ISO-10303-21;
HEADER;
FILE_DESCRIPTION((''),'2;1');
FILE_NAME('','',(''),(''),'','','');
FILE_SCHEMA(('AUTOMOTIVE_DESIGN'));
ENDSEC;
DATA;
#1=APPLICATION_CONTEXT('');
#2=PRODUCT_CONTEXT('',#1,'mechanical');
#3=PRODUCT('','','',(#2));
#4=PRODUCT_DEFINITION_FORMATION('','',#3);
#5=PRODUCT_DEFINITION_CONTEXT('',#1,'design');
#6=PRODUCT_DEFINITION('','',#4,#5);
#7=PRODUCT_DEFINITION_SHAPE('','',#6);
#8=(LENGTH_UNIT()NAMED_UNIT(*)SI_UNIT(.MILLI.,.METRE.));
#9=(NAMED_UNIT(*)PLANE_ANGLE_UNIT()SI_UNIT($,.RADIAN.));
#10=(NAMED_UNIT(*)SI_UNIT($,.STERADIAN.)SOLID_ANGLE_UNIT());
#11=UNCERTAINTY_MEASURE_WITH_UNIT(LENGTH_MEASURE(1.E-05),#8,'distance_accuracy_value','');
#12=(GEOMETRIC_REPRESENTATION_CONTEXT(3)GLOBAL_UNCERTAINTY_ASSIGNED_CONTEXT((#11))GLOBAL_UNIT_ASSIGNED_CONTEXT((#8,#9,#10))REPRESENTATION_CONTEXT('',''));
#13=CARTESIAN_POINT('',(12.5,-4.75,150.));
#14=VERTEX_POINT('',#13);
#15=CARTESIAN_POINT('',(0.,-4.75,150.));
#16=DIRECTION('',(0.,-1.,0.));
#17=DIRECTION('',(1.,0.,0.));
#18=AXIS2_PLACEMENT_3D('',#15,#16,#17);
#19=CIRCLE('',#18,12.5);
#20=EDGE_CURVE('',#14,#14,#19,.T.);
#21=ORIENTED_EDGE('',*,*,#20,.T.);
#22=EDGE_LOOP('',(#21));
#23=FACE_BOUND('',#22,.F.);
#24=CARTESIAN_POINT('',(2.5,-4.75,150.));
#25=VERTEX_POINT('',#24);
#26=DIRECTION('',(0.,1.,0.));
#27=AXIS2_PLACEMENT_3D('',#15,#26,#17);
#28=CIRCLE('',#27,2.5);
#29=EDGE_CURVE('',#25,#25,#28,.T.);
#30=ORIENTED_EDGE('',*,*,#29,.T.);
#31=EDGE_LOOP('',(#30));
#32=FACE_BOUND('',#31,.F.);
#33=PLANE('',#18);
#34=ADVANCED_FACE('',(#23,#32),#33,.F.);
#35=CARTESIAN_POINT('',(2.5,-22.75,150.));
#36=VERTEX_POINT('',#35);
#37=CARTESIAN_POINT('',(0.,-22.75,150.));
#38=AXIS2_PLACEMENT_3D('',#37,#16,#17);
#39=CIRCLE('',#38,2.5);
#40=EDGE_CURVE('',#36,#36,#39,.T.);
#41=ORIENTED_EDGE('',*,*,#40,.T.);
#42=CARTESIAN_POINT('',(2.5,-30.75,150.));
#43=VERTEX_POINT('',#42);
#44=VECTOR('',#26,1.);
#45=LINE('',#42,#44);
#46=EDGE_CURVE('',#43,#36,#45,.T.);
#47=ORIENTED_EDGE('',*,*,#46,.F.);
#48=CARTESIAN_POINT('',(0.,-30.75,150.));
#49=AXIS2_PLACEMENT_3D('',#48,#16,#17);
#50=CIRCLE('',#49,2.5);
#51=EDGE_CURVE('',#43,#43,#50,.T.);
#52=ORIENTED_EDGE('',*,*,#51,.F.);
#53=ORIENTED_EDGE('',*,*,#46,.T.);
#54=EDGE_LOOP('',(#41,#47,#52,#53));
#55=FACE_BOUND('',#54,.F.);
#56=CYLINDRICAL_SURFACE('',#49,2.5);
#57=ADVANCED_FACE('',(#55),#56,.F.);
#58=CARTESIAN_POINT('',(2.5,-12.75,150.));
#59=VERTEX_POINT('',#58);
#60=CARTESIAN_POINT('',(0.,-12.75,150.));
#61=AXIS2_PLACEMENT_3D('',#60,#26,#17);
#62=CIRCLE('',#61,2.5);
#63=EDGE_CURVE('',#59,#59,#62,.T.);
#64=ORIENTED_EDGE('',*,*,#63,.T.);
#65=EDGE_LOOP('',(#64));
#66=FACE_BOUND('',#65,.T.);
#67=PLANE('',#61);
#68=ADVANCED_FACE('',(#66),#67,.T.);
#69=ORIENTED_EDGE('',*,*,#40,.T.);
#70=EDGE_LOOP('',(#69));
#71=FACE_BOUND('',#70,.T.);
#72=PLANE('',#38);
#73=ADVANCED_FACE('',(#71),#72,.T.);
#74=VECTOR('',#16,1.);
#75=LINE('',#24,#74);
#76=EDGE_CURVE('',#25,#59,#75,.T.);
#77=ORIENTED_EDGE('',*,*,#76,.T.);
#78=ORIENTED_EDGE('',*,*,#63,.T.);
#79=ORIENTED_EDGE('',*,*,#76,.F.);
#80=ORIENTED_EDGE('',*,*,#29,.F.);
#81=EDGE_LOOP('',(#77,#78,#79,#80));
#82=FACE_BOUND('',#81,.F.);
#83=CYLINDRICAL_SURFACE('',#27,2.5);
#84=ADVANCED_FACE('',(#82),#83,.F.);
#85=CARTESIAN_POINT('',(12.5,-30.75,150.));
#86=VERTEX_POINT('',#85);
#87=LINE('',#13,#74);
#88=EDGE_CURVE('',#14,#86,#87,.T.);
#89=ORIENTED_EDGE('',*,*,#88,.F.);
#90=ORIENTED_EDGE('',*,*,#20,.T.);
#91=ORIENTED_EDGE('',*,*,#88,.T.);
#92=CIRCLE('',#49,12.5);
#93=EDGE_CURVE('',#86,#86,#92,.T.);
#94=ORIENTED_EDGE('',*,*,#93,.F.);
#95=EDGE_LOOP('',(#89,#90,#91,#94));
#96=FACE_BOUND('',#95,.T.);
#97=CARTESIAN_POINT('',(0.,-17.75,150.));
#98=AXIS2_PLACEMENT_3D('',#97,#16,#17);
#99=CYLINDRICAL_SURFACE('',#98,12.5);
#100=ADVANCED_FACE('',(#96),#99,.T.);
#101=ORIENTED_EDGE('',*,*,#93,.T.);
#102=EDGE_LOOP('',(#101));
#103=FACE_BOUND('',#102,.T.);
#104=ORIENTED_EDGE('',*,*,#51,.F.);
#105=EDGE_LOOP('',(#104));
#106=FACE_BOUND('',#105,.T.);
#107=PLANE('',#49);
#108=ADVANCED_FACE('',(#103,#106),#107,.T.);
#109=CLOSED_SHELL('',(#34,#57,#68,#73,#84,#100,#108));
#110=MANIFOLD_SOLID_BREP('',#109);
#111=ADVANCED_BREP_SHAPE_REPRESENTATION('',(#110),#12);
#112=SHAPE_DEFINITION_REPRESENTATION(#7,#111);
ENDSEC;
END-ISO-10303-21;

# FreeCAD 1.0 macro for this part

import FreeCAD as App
import Part
import Sketcher

doc = App.newDocument("Part")
body = doc.addObject("PartDesign::Body", "Body")

sketch1 = body.newObject("Sketcher::SketchObject", "Sketch")
sketch1.AttachmentSupport = (doc.getObject("XZ_Plane"), [""])
sketch1.MapMode = "FlatFace"
sketch1.addGeometry(Part.Circle(App.Vector(0, 0, 0), App.Vector(0, 0, 1), 12), False)
sketch1.addConstraint([
    Sketcher.Constraint("Coincident", 0, 3, -1, 1),
    Sketcher.Constraint("Diameter", 0, 25.0),
])
pad1 = body.newObject("PartDesign::Pad", "Pad")
pad1.Profile = sketch1
pad1.Length = 26
pad1.Midplane = True

sketch2 = body.newObject("Sketcher::SketchObject", "Sketch001")
sketch2.AttachmentSupport = (doc.getObject("XZ_Plane"), [""])
sketch2.MapMode = "FlatFace"
sketch2.AttachmentOffset = App.Placement(App.Vector(0, 0, 13), App.Rotation())
sketch2.addGeometry(Part.Circle(App.Vector(0, 0, 0), App.Vector(0, 0, 1), 2.5), False)
sketch2.addConstraint([
    Sketcher.Constraint("Coincident", 0, 3, -1, 1),
    Sketcher.Constraint("Diameter", 0, 5.0),
])
pocket1 = body.newObject("PartDesign::Pocket", "Pocket")
pocket1.Profile = sketch2
pocket1.Length = 8

sketch3 = body.newObject("Sketcher::SketchObject", "Sketch002")
sketch3.AttachmentSupport = (doc.getObject("XZ_Plane"), [""])
sketch3.MapMode = "FlatFace"
sketch3.AttachmentOffset = App.Placement(App.Vector(0, 0, -13), App.Rotation())
sketch3.addGeometry(Part.Circle(App.Vector(0, 0, 0), App.Vector(0, 0, 1), 2.5), False)
sketch3.addConstraint([
    Sketcher.Constraint("Coincident", 0, 3, -1, 1),
    Sketcher.Constraint("Diameter", 0, 5.0),
])
pocket2 = body.newObject("PartDesign::Pocket", "Pocket001")
pocket2.Profile = sketch3
pocket2.Length = 8
pocket2.Reversed = True
body2 = doc.addObject("PartDesign::Body", "Body001")
doc.recompute()

body.Placement = App.Placement(App.Vector(0, -17.75, 150), App.Rotation(App.Vector(0, 0, 1), 0))
boolean = body2.newObject("PartDesign::Boolean", "Boolean")
boolean.Type = "Fuse"
boolean.addObjects([body])

doc.recompute()
